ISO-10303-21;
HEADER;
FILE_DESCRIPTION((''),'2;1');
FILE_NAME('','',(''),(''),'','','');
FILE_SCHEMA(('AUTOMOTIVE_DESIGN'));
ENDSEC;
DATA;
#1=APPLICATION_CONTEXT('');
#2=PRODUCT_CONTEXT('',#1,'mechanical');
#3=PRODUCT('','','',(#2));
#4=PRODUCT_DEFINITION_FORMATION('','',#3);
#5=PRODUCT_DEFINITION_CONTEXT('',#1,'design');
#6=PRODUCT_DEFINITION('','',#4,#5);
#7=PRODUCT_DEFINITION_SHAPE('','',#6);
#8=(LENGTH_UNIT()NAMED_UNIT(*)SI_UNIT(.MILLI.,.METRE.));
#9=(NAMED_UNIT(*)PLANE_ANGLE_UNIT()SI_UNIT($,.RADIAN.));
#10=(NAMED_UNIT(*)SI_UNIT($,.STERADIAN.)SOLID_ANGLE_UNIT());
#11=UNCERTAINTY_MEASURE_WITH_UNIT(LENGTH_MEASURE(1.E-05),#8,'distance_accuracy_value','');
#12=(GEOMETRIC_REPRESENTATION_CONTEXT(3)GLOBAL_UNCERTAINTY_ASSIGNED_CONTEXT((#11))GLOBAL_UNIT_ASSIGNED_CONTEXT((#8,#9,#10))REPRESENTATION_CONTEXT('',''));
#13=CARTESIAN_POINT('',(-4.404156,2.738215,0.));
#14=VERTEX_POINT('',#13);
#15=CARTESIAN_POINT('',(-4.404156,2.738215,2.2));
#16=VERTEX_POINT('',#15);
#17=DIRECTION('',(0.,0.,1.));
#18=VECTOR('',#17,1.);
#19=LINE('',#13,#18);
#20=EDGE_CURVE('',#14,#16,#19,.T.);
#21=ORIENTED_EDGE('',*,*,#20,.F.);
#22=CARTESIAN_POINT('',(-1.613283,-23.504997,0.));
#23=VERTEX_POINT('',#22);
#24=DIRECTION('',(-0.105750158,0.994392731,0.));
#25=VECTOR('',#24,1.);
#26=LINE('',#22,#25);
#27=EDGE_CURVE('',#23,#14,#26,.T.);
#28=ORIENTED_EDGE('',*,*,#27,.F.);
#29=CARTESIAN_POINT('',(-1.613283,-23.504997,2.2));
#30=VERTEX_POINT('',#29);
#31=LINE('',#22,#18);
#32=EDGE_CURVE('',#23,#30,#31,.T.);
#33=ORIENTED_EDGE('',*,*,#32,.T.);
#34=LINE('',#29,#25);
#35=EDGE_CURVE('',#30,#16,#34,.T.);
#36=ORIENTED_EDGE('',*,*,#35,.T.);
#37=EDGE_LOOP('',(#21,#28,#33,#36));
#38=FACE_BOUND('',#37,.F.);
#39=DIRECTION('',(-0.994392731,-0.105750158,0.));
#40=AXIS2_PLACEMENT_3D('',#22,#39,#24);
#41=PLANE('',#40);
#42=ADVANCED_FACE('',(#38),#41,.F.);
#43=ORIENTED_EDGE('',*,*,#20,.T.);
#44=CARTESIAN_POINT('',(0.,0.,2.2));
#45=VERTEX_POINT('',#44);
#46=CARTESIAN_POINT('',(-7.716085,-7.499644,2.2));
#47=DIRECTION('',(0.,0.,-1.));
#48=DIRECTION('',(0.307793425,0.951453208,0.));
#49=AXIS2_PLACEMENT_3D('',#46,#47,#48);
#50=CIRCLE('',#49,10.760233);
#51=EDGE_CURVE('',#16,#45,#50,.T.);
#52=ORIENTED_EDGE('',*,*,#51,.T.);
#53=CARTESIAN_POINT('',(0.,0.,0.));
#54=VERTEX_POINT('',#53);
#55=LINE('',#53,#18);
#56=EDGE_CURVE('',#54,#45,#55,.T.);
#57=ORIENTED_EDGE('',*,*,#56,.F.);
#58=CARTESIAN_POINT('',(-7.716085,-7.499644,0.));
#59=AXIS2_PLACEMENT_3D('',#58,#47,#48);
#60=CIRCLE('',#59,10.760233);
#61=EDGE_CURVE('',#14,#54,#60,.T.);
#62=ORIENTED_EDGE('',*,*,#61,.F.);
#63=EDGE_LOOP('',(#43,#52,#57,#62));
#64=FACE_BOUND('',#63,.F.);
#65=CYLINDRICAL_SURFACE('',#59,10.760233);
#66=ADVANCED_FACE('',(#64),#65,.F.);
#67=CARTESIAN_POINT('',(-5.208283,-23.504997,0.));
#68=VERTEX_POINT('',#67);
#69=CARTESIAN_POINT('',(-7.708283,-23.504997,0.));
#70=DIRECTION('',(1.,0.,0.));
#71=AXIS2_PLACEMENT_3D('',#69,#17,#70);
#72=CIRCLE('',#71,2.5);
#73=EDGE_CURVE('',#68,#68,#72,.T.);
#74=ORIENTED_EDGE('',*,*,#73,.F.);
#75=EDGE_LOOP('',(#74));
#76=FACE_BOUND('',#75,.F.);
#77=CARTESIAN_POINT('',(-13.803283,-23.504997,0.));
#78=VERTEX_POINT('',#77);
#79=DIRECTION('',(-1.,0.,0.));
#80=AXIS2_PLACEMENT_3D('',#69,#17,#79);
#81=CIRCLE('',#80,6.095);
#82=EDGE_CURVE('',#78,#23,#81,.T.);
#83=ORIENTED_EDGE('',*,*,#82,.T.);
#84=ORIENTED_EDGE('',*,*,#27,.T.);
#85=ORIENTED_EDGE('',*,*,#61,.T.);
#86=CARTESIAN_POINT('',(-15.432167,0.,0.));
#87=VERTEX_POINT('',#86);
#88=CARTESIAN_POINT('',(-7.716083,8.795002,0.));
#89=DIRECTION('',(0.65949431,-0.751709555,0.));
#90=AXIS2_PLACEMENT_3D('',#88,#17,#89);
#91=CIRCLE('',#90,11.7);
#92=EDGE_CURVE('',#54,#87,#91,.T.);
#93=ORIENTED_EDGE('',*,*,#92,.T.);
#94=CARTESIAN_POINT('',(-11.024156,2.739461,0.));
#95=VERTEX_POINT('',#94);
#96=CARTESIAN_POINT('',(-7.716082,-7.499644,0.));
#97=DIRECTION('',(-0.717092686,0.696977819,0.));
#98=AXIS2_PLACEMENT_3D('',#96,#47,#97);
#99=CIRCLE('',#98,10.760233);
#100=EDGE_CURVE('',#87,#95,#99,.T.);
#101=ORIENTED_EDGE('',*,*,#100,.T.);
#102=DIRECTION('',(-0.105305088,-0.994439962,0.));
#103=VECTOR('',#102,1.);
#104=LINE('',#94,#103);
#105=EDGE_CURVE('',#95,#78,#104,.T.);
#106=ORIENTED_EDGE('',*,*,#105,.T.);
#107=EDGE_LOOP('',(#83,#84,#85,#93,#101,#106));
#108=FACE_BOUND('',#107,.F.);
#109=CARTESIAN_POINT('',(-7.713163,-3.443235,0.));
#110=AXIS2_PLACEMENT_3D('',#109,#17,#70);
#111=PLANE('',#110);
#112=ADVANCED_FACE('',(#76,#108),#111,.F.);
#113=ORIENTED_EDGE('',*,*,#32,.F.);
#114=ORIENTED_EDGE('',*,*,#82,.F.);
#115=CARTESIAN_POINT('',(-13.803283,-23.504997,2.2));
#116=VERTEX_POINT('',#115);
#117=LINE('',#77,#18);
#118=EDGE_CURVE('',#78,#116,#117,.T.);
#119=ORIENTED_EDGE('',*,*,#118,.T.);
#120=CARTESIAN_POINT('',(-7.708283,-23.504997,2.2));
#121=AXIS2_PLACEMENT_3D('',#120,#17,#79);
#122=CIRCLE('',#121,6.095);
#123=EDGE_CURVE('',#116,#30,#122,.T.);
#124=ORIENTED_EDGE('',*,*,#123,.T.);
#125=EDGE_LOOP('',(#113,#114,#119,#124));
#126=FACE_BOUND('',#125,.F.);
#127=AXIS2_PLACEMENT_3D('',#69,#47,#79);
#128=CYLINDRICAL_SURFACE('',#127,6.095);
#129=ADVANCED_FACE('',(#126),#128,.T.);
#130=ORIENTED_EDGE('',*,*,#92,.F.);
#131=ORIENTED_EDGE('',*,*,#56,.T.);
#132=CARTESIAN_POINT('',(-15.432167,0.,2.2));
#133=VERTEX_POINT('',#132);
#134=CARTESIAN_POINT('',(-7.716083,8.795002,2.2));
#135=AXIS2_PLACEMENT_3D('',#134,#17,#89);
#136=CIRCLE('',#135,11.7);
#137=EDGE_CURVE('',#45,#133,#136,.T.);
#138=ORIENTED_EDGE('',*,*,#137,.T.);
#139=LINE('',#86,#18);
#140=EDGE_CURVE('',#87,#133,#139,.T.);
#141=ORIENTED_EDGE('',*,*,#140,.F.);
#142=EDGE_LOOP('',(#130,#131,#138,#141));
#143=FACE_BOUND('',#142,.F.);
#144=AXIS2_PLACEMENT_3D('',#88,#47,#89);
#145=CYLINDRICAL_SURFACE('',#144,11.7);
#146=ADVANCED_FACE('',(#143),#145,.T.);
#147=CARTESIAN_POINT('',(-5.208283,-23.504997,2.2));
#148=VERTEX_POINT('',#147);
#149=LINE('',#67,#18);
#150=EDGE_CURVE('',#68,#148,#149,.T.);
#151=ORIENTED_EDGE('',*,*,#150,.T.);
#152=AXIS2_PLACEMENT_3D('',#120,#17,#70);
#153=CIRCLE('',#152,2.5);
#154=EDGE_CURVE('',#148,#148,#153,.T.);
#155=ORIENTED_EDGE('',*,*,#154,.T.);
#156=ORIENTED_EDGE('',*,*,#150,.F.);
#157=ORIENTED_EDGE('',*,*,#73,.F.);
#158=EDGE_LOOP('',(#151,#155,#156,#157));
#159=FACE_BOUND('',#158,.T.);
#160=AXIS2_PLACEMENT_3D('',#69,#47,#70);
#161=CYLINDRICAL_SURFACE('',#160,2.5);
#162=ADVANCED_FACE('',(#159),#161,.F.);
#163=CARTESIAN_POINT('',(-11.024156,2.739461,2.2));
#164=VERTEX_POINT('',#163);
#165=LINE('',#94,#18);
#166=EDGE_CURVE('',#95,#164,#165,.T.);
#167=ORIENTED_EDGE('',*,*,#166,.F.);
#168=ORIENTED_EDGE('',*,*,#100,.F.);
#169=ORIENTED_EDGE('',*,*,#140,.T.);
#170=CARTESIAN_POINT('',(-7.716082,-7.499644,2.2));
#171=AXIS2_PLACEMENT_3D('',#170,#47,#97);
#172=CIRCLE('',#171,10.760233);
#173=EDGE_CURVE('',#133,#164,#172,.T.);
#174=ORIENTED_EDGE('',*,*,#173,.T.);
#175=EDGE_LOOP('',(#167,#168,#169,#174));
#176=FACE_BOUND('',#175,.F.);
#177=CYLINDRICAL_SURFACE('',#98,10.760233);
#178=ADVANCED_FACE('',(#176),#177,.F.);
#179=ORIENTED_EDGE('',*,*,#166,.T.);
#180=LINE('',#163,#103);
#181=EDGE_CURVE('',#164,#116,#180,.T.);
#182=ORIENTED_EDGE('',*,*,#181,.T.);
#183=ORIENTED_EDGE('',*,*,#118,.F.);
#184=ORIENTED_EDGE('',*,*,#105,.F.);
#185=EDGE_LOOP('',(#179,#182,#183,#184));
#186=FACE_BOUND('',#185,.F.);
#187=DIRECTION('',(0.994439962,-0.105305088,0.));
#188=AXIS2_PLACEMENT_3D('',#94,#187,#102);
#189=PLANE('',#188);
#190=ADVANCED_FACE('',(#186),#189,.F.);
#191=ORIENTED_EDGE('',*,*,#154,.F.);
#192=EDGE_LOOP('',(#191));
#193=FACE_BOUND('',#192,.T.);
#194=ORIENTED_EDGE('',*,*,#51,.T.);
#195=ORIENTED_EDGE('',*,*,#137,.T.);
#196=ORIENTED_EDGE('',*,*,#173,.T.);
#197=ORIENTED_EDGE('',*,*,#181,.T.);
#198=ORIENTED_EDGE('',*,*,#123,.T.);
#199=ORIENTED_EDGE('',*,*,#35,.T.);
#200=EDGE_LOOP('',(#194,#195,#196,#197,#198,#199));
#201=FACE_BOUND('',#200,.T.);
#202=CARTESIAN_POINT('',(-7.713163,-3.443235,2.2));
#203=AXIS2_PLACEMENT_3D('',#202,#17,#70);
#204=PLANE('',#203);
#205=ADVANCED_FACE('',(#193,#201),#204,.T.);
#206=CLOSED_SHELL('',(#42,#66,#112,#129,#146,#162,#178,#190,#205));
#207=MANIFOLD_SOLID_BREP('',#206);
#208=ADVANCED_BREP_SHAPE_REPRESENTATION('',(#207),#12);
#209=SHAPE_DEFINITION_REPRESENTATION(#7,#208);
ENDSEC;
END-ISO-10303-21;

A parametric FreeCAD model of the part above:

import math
import FreeCAD as App
import Part
import Sketcher
from FreeCAD import Vector
Q = App.Units.Quantity

doc = App.newDocument("Part")
body = doc.addObject("PartDesign::Body", "Body")

# Sketch on XY plane
sketch1 = body.newObject("Sketcher::SketchObject", "Sketch")
sketch1.AttachmentSupport = (doc.getObject("XY_Plane"), [""])
sketch1.MapMode = "FlatFace"
sketch1.addGeometry([
    Part.ArcOfCircle(Part.Circle(Vector(-7.7, -7.5, 0), Vector(0, 0, 1), 10.8), math.radians(44), math.radians(72)),  # 0
    Part.ArcOfCircle(Part.Circle(Vector(-7.7, 8.8, 0), Vector(0, 0, 1), 11.7), math.radians(-49), math.radians(229)),  # 1
    Part.ArcOfCircle(Part.Circle(Vector(-7.7, -7.5, 0), Vector(0, 0, 1), 10.8), math.radians(108), math.radians(136)),  # 2
    Part.LineSegment(Vector(-11, 2.7, 0), Vector(-13.8, -23.5, 0)),  # 3
    Part.ArcOfCircle(Part.Circle(Vector(-7.7, -23.5, 0), Vector(0, 0, 1), 6.1), math.radians(180), math.radians(360)),  # 4
    Part.LineSegment(Vector(-1.6, -23.5, 0), Vector(-4.4, 2.7, 0)),  # 5
    Part.Circle(Vector(-7.7, -23.5, 0), Vector(0, 0, 1), 2.5),  # 6
], False)
sketch1.addConstraint([
    Sketcher.Constraint("Coincident", 0, 1, 1, 1),
    Sketcher.Constraint("Coincident", 1, 2, 2, 2),
    Sketcher.Constraint("Coincident", 2, 1, 3, 1),
    Sketcher.Constraint("Coincident", 3, 2, 4, 1),
    Sketcher.Constraint("Coincident", 4, 2, 5, 1),
    Sketcher.Constraint("Coincident", 5, 2, 0, 2),
    Sketcher.Constraint("Coincident", 0, 1, -1, 1),
    Sketcher.Constraint("Coincident", 2, 3, 0, 3),
    Sketcher.Constraint("Coincident", 6, 3, 4, 3),
    Sketcher.Constraint("Equal", 0, 2),
    Sketcher.Constraint("PointOnObject", 1, 2, -1),
    Sketcher.Constraint("Horizontal", 6, 3, 3, 2),
    Sketcher.Constraint("Horizontal", 3, 2, 4, 2),
    Sketcher.Constraint("Equal", 3, 5),
    Sketcher.Constraint("Diameter", 6, Q("5 mm")),
    Sketcher.Constraint("Radius", 1, Q("11.7 mm")),
    Sketcher.Constraint("Radius", 4, Q("6.095 mm")),
    Sketcher.Constraint("DistanceY", 4, 3, 1, 3, Q("32.299999 mm")),
    Sketcher.Constraint("DistanceX", 2, 1, 5, 2, Q("6.62 mm")),
    Sketcher.Constraint("DistanceY", -1, 1, 1, 3, Q("8.795002 mm")),
    Sketcher.Constraint("Radius", 0, Q("10.760233 mm")),
    Sketcher.Constraint("DistanceX", 2, 3, 4, 3, Q("0.007799 mm")),
])
pad1 = body.newObject("PartDesign::Pad", "Pad")
pad1.Profile = sketch1
pad1.Length = 2.2

doc.recompute()
